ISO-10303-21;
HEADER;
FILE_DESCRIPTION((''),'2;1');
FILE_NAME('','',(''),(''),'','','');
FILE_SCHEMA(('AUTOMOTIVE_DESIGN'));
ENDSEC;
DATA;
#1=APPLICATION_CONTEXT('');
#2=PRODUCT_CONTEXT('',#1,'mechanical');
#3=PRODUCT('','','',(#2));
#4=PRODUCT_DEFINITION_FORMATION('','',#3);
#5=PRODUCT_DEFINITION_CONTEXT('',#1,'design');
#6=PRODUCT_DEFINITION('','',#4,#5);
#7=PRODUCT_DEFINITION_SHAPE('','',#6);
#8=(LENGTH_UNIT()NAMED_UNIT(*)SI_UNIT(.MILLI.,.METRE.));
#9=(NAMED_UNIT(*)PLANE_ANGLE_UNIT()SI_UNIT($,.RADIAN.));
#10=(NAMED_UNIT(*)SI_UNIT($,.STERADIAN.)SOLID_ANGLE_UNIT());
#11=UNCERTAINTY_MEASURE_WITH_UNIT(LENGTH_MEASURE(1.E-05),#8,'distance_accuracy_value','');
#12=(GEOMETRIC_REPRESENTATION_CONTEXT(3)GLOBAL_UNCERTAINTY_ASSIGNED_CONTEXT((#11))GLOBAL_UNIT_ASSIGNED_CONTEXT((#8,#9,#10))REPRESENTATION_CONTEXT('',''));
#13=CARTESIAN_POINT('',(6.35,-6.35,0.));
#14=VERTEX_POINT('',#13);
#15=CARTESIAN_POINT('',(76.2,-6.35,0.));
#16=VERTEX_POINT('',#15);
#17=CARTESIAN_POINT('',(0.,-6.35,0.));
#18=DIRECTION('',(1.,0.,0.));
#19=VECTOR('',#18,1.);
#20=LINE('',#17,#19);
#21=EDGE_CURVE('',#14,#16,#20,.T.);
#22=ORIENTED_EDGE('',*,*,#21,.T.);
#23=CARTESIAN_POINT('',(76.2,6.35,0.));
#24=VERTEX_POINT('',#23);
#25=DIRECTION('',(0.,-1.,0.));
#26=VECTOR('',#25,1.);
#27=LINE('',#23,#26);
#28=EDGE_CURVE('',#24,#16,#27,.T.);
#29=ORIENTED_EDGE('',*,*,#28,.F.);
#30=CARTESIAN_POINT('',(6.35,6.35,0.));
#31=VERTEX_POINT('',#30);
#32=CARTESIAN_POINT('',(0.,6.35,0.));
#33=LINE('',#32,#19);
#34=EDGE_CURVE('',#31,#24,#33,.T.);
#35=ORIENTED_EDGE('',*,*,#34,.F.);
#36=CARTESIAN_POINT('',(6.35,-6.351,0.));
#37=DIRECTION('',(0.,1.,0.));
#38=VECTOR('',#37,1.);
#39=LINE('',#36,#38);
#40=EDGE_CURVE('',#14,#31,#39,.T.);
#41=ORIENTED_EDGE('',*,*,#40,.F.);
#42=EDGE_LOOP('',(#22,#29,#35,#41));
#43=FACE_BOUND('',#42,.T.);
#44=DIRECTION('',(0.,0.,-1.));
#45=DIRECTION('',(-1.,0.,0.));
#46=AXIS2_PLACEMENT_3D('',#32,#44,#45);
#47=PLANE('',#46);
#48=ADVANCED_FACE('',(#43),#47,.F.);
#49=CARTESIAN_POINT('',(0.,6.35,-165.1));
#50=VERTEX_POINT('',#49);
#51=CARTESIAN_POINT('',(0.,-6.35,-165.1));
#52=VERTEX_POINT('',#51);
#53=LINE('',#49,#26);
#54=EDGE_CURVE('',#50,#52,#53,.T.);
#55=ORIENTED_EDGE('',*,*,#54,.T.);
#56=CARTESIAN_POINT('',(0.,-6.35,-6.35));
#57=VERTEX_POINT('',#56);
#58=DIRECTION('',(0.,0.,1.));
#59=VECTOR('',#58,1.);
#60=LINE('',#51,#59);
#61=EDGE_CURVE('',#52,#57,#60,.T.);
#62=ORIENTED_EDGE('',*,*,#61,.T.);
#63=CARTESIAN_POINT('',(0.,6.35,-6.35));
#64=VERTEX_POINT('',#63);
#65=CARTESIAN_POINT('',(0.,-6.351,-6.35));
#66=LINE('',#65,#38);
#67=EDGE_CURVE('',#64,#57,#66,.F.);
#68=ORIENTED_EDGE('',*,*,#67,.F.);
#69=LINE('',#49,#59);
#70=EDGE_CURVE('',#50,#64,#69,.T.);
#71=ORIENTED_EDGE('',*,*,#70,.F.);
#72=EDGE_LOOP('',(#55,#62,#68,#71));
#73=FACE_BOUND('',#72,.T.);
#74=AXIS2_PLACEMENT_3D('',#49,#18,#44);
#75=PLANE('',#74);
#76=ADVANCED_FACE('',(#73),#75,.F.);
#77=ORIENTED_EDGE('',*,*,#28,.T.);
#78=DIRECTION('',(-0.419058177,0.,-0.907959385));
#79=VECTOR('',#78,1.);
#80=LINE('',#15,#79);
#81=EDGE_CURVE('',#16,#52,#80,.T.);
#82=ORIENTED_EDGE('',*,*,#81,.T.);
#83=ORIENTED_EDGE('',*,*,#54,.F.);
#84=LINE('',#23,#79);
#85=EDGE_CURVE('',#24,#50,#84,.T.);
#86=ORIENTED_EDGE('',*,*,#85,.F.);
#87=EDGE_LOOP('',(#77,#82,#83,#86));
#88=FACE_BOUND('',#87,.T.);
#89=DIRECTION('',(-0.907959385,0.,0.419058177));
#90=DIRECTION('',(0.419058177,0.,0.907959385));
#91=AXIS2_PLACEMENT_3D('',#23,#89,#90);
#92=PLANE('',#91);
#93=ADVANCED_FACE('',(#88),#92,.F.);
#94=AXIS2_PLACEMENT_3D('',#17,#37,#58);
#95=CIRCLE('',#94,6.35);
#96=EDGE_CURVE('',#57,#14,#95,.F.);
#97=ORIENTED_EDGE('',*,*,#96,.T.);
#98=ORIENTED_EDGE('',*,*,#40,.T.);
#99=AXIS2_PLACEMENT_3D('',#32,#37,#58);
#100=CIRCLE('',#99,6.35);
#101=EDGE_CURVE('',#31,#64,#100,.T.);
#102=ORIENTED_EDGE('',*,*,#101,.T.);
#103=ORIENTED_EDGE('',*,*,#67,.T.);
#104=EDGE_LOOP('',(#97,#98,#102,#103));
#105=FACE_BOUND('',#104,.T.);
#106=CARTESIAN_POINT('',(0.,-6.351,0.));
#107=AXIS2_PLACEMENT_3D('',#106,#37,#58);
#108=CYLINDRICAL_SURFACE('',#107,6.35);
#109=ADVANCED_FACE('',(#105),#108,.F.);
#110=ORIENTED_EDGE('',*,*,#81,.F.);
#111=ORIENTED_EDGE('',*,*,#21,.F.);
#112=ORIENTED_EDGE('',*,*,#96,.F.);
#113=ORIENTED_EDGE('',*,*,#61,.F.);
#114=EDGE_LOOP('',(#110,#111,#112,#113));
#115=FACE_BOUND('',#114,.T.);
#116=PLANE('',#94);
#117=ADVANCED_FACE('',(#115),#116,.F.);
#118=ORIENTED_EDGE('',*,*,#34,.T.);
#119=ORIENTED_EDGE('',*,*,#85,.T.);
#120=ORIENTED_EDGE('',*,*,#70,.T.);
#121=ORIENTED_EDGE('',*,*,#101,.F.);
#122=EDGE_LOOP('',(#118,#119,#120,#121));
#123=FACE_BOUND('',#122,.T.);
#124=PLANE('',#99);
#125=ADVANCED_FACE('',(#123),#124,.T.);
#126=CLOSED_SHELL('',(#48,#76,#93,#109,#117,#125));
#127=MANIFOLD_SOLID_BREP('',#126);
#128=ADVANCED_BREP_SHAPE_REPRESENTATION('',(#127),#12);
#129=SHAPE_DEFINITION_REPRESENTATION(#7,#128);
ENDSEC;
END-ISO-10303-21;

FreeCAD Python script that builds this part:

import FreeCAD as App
import Part
import Sketcher
Q = App.Units.Quantity

doc = App.newDocument("Part")
body = doc.addObject("PartDesign::Body", "Body")

# Sketch on XZ plane
sketch1 = doc.addObject("Sketcher::SketchObject", "Sketch")
body.addObject(sketch1)
sketch1.AttachmentSupport = (doc.XZ_Plane, [""])
sketch1.MapMode = "FlatFace"
sketch1.addGeometry([
    Part.LineSegment(App.Vector(0, 0, 0), App.Vector(76.2, 0, 0)),
    Part.LineSegment(App.Vector(76.2, 0, 0), App.Vector(0, -165.1, 0)),
    Part.LineSegment(App.Vector(0, -165.1, 0), App.Vector(0, 0, 0)),
], False)
sketch1.addConstraint([
    Sketcher.Constraint("Coincident", 0, 2, 1, 1),
    Sketcher.Constraint("Coincident", 1, 2, 2, 1),
    Sketcher.Constraint("Coincident", 2, 2, 0, 1),
    Sketcher.Constraint("Horizontal", 0),
    Sketcher.Constraint("Vertical", 2),
    Sketcher.Constraint("Coincident", 2, 2, -1, 1),
    Sketcher.Constraint("DistanceX", 0, 1, 0, 2, Q("3 in")),
    Sketcher.Constraint("DistanceY", 2, 1, 2, 2, Q("6.5 in")),
])
pad1 = doc.addObject("PartDesign::Pad", "Pad")
body.addObject(pad1)
pad1.Profile = sketch1
pad1.Length = Q("0.5 in")
pad1.Midplane = True

# Sketch on XZ plane
sketch2 = doc.addObject("Sketcher::SketchObject", "Sketch001")
body.addObject(sketch2)
sketch2.AttachmentSupport = (doc.XZ_Plane, [""])
sketch2.MapMode = "FlatFace"
sketch2.AttachmentOffset = App.Placement(App.Vector(0, 0, -0.25 * 25.4), App.Rotation())
sketch2.addGeometry(Part.Circle(App.Vector(0, 0, 0), App.Vector(0, 0, 1), 6.35), False)
sketch2.addConstraint([
    Sketcher.Constraint("Coincident", 0, 3, -1, 1),
    Sketcher.Constraint("Diameter", 0, Q("0.5 in")),
])
pocket1 = doc.addObject("PartDesign::Pocket", "Pocket")
body.addObject(pocket1)
pocket1.Profile = sketch2
pocket1.Type = "UpToFirst"
pocket1.Reversed = True

doc.recompute()
